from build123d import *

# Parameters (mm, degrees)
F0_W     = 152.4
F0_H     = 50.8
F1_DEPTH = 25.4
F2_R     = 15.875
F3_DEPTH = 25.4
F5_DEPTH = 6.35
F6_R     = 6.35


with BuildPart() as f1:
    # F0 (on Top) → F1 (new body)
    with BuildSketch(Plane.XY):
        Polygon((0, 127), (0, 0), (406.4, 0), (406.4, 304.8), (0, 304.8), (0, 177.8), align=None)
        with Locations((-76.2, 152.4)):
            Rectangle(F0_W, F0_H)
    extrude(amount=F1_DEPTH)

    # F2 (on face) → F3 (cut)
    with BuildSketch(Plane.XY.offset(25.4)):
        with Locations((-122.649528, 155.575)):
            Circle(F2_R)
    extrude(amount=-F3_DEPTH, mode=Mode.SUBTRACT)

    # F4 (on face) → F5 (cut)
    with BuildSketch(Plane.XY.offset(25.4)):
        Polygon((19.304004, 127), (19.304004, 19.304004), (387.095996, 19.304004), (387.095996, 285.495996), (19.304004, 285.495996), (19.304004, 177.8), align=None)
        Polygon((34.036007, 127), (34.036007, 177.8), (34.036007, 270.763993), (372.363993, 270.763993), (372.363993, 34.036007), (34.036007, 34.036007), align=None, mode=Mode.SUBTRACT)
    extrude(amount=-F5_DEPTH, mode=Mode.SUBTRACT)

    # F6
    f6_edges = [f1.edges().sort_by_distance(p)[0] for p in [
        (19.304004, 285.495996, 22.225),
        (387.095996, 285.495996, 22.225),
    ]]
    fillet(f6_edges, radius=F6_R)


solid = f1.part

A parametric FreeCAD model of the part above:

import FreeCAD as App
import Part
import Sketcher
from FreeCAD import Vector
Q = App.Units.Quantity


def edges_at(feature, points):
    """Names of the edges that pass closest to the given points."""
    edges = feature.Shape.Edges
    near = lambda p: min(range(len(edges)), key=lambda i: edges[i].distToShape(Part.Vertex(*p))[0])
    return sorted({f"Edge{near(p) + 1}" for p in points})


def add_polygon(sketch, points):
    """Adds a closed chain of lines whose ends are joined by coincident constraints."""
    first, n = sketch.GeometryCount, len(points)
    for a, b in zip(points, points[1:] + points[:1]):
        sketch.addGeometry(Part.LineSegment(App.Vector(*a, 0), App.Vector(*b, 0)), False)
    for i in range(n):
        sketch.addConstraint(Sketcher.Constraint("Coincident", first + i, 2, first + (i + 1) % n, 1))

doc = App.newDocument("Part")
body = doc.addObject("PartDesign::Body", "Body")

# Sketch on XY plane
sketch1 = body.newObject("Sketcher::SketchObject", "Sketch")
sketch1.AttachmentSupport = (doc.getObject("XY_Plane"), [""])
sketch1.MapMode = "FlatFace"
add_polygon(sketch1, [(0, 0), (406.4, 0), (406.4, 304.8), (0, 304.8), (0, 177.8), (-152.4, 177.8), (-152.4, 127), (0, 127)])  # lines 0-7
sketch1.addConstraint([
    Sketcher.Constraint("Horizontal", 0),
    Sketcher.Constraint("Vertical", 1),
    Sketcher.Constraint("Horizontal", 2),
    Sketcher.Constraint("Vertical", 3),
    Sketcher.Constraint("Horizontal", 4),
    Sketcher.Constraint("Vertical", 5),
    Sketcher.Constraint("Horizontal", 6),
    Sketcher.Constraint("Vertical", 7),
    Sketcher.Constraint("Coincident", 7, 2, -1, 1),
    Sketcher.Constraint("PointOnObject", 2, 2, -2),
    Sketcher.Constraint("Equal", 3, 7),
    Sketcher.Constraint("DistanceX", 0, 1, 0, 2, Q("16 in")),
    Sketcher.Constraint("DistanceX", 4, 2, 4, 1, Q("6 in")),
    Sketcher.Constraint("DistanceY", 1, 1, 1, 2, Q("12 in")),
    Sketcher.Constraint("DistanceY", 3, 2, 3, 1, Q("5 in")),
])
pad1 = body.newObject("PartDesign::Pad", "Pad")
pad1.Profile = sketch1
pad1.Length = Q("1 in")

# Sketch on XY plane
sketch2 = body.newObject("Sketcher::SketchObject", "Sketch001")
sketch2.AttachmentSupport = (doc.getObject("XY_Plane"), [""])
sketch2.MapMode = "FlatFace"
sketch2.AttachmentOffset = App.Placement(Vector(0, 0, 1 * 25.4), App.Rotation())
sketch2.addGeometry(Part.Circle(Vector(-122.649528, 155.575, 0), Vector(0, 0, 1), 15.875), False)
sketch2.addConstraint([
    Sketcher.Constraint("Diameter", 0, Q("1.25 in")),
    Sketcher.Constraint("DistanceY", -1, 1, 0, 3, Q("6.125 in")),
    Sketcher.Constraint("DistanceX", 0, 3, -1, 1, Q("122.649528 mm")),
])
pocket1 = body.newObject("PartDesign::Pocket", "Pocket")
pocket1.Profile = sketch2
pocket1.Length = Q("1 in")

# Sketch on XY plane
sketch3 = body.newObject("Sketcher::SketchObject", "Sketch002")
sketch3.AttachmentSupport = (doc.getObject("XY_Plane"), [""])
sketch3.MapMode = "FlatFace"
sketch3.AttachmentOffset = App.Placement(Vector(0, 0, 1 * 25.4), App.Rotation())
add_polygon(sketch3, [(19.304004, 19.304004), (387.095996, 19.304004), (387.095996, 285.495996), (19.304004, 285.495996)])  # lines 0-3
add_polygon(sketch3, [(34.036007, 34.036007), (34.036007, 270.763993), (372.363993, 270.763993), (372.363993, 34.036007)])  # lines 4-7
sketch3.addConstraint([
    Sketcher.Constraint("Horizontal", 0),
    Sketcher.Constraint("Vertical", 1),
    Sketcher.Constraint("Horizontal", 2),
    Sketcher.Constraint("Vertical", 3),
    Sketcher.Constraint("Vertical", 4),
    Sketcher.Constraint("Horizontal", 5),
    Sketcher.Constraint("Vertical", 6),
    Sketcher.Constraint("Horizontal", 7),
    Sketcher.Constraint("DistanceX", -1, 1, 0, 2, Q("15.2399998 in")),
    Sketcher.Constraint("DistanceY", -1, 1, 0, 2, Q("0.7600002 in")),
    Sketcher.Constraint("DistanceY", -1, 1, 1, 2, Q("11.2399998 in")),
    Sketcher.Constraint("DistanceX", -1, 1, 2, 2, Q("0.7600002 in")),
    Sketcher.Constraint("DistanceX", 2, 2, 4, 2, Q("0.5800001 in")),
    Sketcher.Constraint("DistanceY", 4, 2, 2, 2, Q("0.5800001 in")),
    Sketcher.Constraint("DistanceX", 5, 2, 1, 2, Q("0.5800001 in")),
    Sketcher.Constraint("DistanceY", 0, 2, 6, 2, Q("0.5800001 in")),
])
pocket2 = body.newObject("PartDesign::Pocket", "Pocket001")
pocket2.Profile = sketch3
pocket2.Length = Q("0.25 in")
doc.recompute()

fillet = body.newObject("PartDesign::Fillet", "Fillet")
fillet.Base = (pocket2, edges_at(pocket2, [(19.304, 285.496, 22.225), (387.096, 285.496, 22.225)]))
fillet.Radius = Q("0.25 in")

doc.recompute()
